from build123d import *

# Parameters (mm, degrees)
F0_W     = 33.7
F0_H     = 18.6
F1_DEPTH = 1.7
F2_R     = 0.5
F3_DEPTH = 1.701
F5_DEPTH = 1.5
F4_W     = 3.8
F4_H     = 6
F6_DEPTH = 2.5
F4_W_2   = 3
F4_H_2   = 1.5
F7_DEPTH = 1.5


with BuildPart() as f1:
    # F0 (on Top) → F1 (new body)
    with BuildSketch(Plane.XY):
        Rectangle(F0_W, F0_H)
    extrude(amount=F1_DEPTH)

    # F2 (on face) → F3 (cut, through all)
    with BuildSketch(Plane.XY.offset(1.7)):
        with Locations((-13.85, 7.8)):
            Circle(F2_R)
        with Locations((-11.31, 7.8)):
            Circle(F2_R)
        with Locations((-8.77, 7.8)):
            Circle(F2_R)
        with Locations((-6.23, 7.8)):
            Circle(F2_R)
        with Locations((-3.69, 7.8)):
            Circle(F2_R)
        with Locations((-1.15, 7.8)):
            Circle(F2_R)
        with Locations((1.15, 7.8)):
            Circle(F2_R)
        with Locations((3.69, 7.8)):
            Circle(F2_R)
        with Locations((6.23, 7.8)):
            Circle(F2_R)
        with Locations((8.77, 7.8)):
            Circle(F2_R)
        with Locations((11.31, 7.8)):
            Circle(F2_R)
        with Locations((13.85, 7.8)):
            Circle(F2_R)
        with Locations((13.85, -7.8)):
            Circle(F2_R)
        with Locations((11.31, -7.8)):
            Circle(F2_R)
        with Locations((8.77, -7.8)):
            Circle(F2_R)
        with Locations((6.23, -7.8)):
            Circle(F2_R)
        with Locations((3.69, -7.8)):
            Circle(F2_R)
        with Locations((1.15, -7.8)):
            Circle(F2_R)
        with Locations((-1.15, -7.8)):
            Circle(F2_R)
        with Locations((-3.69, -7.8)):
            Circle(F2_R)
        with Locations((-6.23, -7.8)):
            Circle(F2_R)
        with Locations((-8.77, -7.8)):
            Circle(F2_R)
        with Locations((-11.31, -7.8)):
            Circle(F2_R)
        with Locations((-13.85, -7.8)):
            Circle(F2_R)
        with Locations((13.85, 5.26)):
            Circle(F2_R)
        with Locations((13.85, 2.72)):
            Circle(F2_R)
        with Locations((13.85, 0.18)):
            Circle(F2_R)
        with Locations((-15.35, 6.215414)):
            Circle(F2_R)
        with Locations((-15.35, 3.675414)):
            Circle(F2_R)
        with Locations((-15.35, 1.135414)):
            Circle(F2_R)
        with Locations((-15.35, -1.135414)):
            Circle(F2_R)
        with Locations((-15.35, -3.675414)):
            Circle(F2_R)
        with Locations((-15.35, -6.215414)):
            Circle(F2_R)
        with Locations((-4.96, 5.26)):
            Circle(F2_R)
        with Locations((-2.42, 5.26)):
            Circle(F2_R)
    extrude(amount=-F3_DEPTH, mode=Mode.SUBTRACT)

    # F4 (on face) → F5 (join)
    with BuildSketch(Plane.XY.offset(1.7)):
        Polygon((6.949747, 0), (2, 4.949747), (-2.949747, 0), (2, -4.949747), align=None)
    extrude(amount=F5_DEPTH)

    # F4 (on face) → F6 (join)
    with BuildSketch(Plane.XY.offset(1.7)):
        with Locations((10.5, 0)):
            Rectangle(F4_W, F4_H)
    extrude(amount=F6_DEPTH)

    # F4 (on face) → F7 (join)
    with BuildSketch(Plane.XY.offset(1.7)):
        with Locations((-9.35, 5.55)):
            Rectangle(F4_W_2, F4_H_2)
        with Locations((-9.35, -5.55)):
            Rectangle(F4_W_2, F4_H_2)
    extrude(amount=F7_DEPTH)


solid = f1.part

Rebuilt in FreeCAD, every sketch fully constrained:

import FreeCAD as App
import Part
import Sketcher

doc = App.newDocument("Part")
body = doc.addObject("PartDesign::Body", "Body")

sketch1 = doc.addObject("Sketcher::SketchObject", "Sketch")
body.addObject(sketch1)
sketch1.AttachmentSupport = (doc.XY_Plane, [""])
sketch1.MapMode = "FlatFace"
sketch1.addGeometry([
    Part.LineSegment(App.Vector(-17, 9, 0), App.Vector(-17, -9, 0)),
    Part.LineSegment(App.Vector(-17, -9, 0), App.Vector(17, -9, 0)),
    Part.LineSegment(App.Vector(17, -9, 0), App.Vector(17, 9, 0)),
    Part.LineSegment(App.Vector(17, 9, 0), App.Vector(-17, 9, 0)),
], False)
sketch1.addConstraint([
    Sketcher.Constraint("Coincident", 0, 2, 1, 1),
    Sketcher.Constraint("Coincident", 1, 2, 2, 1),
    Sketcher.Constraint("Coincident", 2, 2, 3, 1),
    Sketcher.Constraint("Coincident", 3, 2, 0, 1),
    Sketcher.Constraint("Vertical", 0),
    Sketcher.Constraint("Horizontal", 1),
    Sketcher.Constraint("Vertical", 2),
    Sketcher.Constraint("Horizontal", 3),
    Sketcher.Constraint("Symmetric", 0, 2, 2, 2, -1, 1),
    Sketcher.Constraint("DistanceX", 1, 1, 1, 2, 33.7),
    Sketcher.Constraint("DistanceY", 0, 2, 0, 1, 18.6),
])
pad1 = doc.addObject("PartDesign::Pad", "Pad")
body.addObject(pad1)
pad1.Profile = sketch1
pad1.Length = 1.7

sketch2 = doc.addObject("Sketcher::SketchObject", "Sketch001")
body.addObject(sketch2)
sketch2.AttachmentSupport = (doc.XY_Plane, [""])
sketch2.MapMode = "FlatFace"
sketch2.AttachmentOffset = App.Placement(App.Vector(0, 0, 1.7), App.Rotation())
sketch2.addGeometry([
    Part.Circle(App.Vector(-13.8, 7.8, 0), App.Vector(0, 0, 1), 0.5),
    Part.Circle(App.Vector(-11.3, 7.8, 0), App.Vector(0, 0, 1), 0.5),
    Part.Circle(App.Vector(-8.8, 7.8, 0), App.Vector(0, 0, 1), 0.5),
    Part.Circle(App.Vector(-6.2, 7.8, 0), App.Vector(0, 0, 1), 0.5),
    Part.Circle(App.Vector(-3.7, 7.8, 0), App.Vector(0, 0, 1), 0.5),
    Part.Circle(App.Vector(-1.1, 7.8, 0), App.Vector(0, 0, 1), 0.5),
    Part.Circle(App.Vector(1.1, 7.8, 0), App.Vector(0, 0, 1), 0.5),
    Part.Circle(App.Vector(3.7, 7.8, 0), App.Vector(0, 0, 1), 0.5),
    Part.Circle(App.Vector(6.2, 7.8, 0), App.Vector(0, 0, 1), 0.5),
    Part.Circle(App.Vector(8.8, 7.8, 0), App.Vector(0, 0, 1), 0.5),
    Part.Circle(App.Vector(11.3, 7.8, 0), App.Vector(0, 0, 1), 0.5),
    Part.Circle(App.Vector(13.8, 7.8, 0), App.Vector(0, 0, 1), 0.5),
    Part.Circle(App.Vector(13.8, -7.8, 0), App.Vector(0, 0, 1), 0.5),
    Part.Circle(App.Vector(11.3, -7.8, 0), App.Vector(0, 0, 1), 0.5),
    Part.Circle(App.Vector(8.8, -7.8, 0), App.Vector(0, 0, 1), 0.5),
    Part.Circle(App.Vector(6.2, -7.8, 0), App.Vector(0, 0, 1), 0.5),
    Part.Circle(App.Vector(3.7, -7.8, 0), App.Vector(0, 0, 1), 0.5),
    Part.Circle(App.Vector(1.1, -7.8, 0), App.Vector(0, 0, 1), 0.5),
    Part.Circle(App.Vector(-1.1, -7.8, 0), App.Vector(0, 0, 1), 0.5),
    Part.Circle(App.Vector(-3.7, -7.8, 0), App.Vector(0, 0, 1), 0.5),
    Part.Circle(App.Vector(-6.2, -7.8, 0), App.Vector(0, 0, 1), 0.5),
    Part.Circle(App.Vector(-8.8, -7.8, 0), App.Vector(0, 0, 1), 0.5),
    Part.Circle(App.Vector(-11.3, -7.8, 0), App.Vector(0, 0, 1), 0.5),
    Part.Circle(App.Vector(-13.8, -7.8, 0), App.Vector(0, 0, 1), 0.5),
    Part.Circle(App.Vector(13.8, 5.3, 0), App.Vector(0, 0, 1), 0.5),
    Part.Circle(App.Vector(13.8, 2.7, 0), App.Vector(0, 0, 1), 0.5),
    Part.Circle(App.Vector(13.8, 0.2, 0), App.Vector(0, 0, 1), 0.5),
    Part.Circle(App.Vector(-15.3, 6.2, 0), App.Vector(0, 0, 1), 0.5),
    Part.Circle(App.Vector(-15.3, 3.7, 0), App.Vector(0, 0, 1), 0.5),
    Part.Circle(App.Vector(-15.3, 1.1, 0), App.Vector(0, 0, 1), 0.5),
    Part.Circle(App.Vector(-15.3, -1.1, 0), App.Vector(0, 0, 1), 0.5),
    Part.Circle(App.Vector(-15.3, -3.7, 0), App.Vector(0, 0, 1), 0.5),
    Part.Circle(App.Vector(-15.3, -6.2, 0), App.Vector(0, 0, 1), 0.5),
    Part.Circle(App.Vector(-5, 5.3, 0), App.Vector(0, 0, 1), 0.5),
    Part.Circle(App.Vector(-2.4, 5.3, 0), App.Vector(0, 0, 1), 0.5),
], False)
sketch2.addConstraint([
    Sketcher.Constraint("Equal", 0, 1),
    Sketcher.Constraint("Equal", 1, 2),
    Sketcher.Constraint("Equal", 2, 3),
    Sketcher.Constraint("Equal", 3, 4),
    Sketcher.Constraint("Equal", 4, 5),
    Sketcher.Constraint("Equal", 5, 6),
    Sketcher.Constraint("Equal", 6, 7),
    Sketcher.Constraint("Equal", 7, 8),
    Sketcher.Constraint("Equal", 8, 9),
    Sketcher.Constraint("Equal", 9, 10),
    Sketcher.Constraint("Equal", 10, 11),
    Sketcher.Constraint("Equal", 11, 12),
    Sketcher.Constraint("Equal", 12, 13),
    Sketcher.Constraint("Equal", 13, 14),
    Sketcher.Constraint("Equal", 14, 15),
    Sketcher.Constraint("Equal", 15, 16),
    Sketcher.Constraint("Equal", 16, 17),
    Sketcher.Constraint("Equal", 17, 18),
    Sketcher.Constraint("Equal", 18, 19),
    Sketcher.Constraint("Equal", 19, 20),
    Sketcher.Constraint("Equal", 20, 21),
    Sketcher.Constraint("Equal", 21, 22),
    Sketcher.Constraint("Equal", 22, 23),
    Sketcher.Constraint("Equal", 23, 24),
    Sketcher.Constraint("Equal", 24, 25),
    Sketcher.Constraint("Equal", 25, 26),
    Sketcher.Constraint("Equal", 26, 27),
    Sketcher.Constraint("Equal", 27, 28),
    Sketcher.Constraint("Equal", 28, 29),
    Sketcher.Constraint("Equal", 29, 30),
    Sketcher.Constraint("Equal", 30, 31),
    Sketcher.Constraint("Equal", 31, 32),
    Sketcher.Constraint("Equal", 32, 33),
    Sketcher.Constraint("Equal", 33, 34),
    Sketcher.Constraint("Symmetric", 0, 3, 12, 3, -1, 1),
    Sketcher.Constraint("Symmetric", 1, 3, 13, 3, -1, 1),
    Sketcher.Constraint("Symmetric", 2, 3, 14, 3, -1, 1),
    Sketcher.Constraint("Symmetric", 3, 3, 15, 3, -1, 1),
    Sketcher.Constraint("Symmetric", 4, 3, 16, 3, -1, 1),
    Sketcher.Constraint("Symmetric", 5, 3, 17, 3, -1, 1),
    Sketcher.Constraint("Symmetric", 6, 3, 18, 3, -1, 1),
    Sketcher.Constraint("Symmetric", 7, 3, 19, 3, -1, 1),
    Sketcher.Constraint("Symmetric", 8, 3, 20, 3, -1, 1),
    Sketcher.Constraint("Symmetric", 9, 3, 21, 3, -1, 1),
    Sketcher.Constraint("Symmetric", 10, 3, 22, 3, -1, 1),
    Sketcher.Constraint("Symmetric", 11, 3, 23, 3, -1, 1),
    Sketcher.Constraint("Symmetric", 5, 3, 6, 3, -2),
    Sketcher.Constraint("Symmetric", 4, 3, 7, 3, -2),
    Sketcher.Constraint("Symmetric", 3, 3, 8, 3, -2),
    Sketcher.Constraint("Symmetric", 2, 3, 9, 3, -2),
    Sketcher.Constraint("Symmetric", 1, 3, 10, 3, -2),
    Sketcher.Constraint("Symmetric", 0, 3, 11, 3, -2),
    Sketcher.Constraint("Symmetric", 29, 3, 30, 3, -1),
    Sketcher.Constraint("Symmetric", 28, 3, 31, 3, -1),
    Sketcher.Constraint("Symmetric", 27, 3, 32, 3, -1),
    Sketcher.Constraint("Horizontal", 0, 3, 1, 3),
    Sketcher.Constraint("Horizontal", 1, 3, 2, 3),
    Sketcher.Constraint("Horizontal", 2, 3, 3, 3),
    Sketcher.Constraint("Horizontal", 3, 3, 4, 3),
    Sketcher.Constraint("Horizontal", 4, 3, 5, 3),
    Sketcher.Constraint("Horizontal", 24, 3, 33, 3),
    Sketcher.Constraint("Horizontal", 33, 3, 34, 3),
    Sketcher.Constraint("Vertical", 12, 3, 24, 3),
    Sketcher.Constraint("Vertical", 24, 3, 25, 3),
    Sketcher.Constraint("Vertical", 25, 3, 26, 3),
    Sketcher.Constraint("Vertical", 27, 3, 28, 3),
    Sketcher.Constraint("Vertical", 28, 3, 29, 3),
    Sketcher.Constraint("Diameter", 0, 1.0),
    Sketcher.Constraint("DistanceY", -1, 1, 0, 3, 7.8),
    Sketcher.Constraint("DistanceX", 0, 3, 5, 3, 12.7),
    Sketcher.Constraint("DistanceX", 5, 3, 6, 3, 2.3),
    Sketcher.Constraint("DistanceX", 27, 3, 0, 3, 1.5),
    Sketcher.Constraint("DistanceX", 1, 3, -1, 1, 11.31),
    Sketcher.Constraint("DistanceX", 2, 3, -1, 1, 8.77),
    Sketcher.Constraint("DistanceX", 3, 3, -1, 1, 6.23),
    Sketcher.Constraint("DistanceX", 4, 3, -1, 1, 3.69),
    Sketcher.Constraint("DistanceY", -1, 1, 24, 3, 5.26),
    Sketcher.Constraint("DistanceY", -1, 1, 25, 3, 2.72),
    Sketcher.Constraint("DistanceY", -1, 1, 26, 3, 0.18),
    Sketcher.Constraint("DistanceX", 33, 3, -1, 1, 4.96),
    Sketcher.Constraint("DistanceX", 34, 3, -1, 1, 2.42),
    Sketcher.Constraint("DistanceY", 28, 3, 27, 3, 2.54),
    Sketcher.Constraint("DistanceY", 29, 3, 28, 3, 2.54),
    Sketcher.Constraint("DistanceY", -1, 1, 27, 3, 6.215414),
])
pocket1 = doc.addObject("PartDesign::Pocket", "Pocket")
body.addObject(pocket1)
pocket1.Profile = sketch2
pocket1.Type = "ThroughAll"

sketch3 = doc.addObject("Sketcher::SketchObject", "Sketch002")
body.addObject(sketch3)
sketch3.AttachmentSupport = (doc.XY_Plane, [""])
sketch3.MapMode = "FlatFace"
sketch3.AttachmentOffset = App.Placement(App.Vector(0, 0, 1.7), App.Rotation())
sketch3.addGeometry([
    Part.LineSegment(App.Vector(7, 0, 0), App.Vector(2, 5, 0)),
    Part.LineSegment(App.Vector(2, 5, 0), App.Vector(-3, 0, 0)),
    Part.LineSegment(App.Vector(-3, 0, 0), App.Vector(2, -5, 0)),
    Part.LineSegment(App.Vector(2, -5, 0), App.Vector(7, 0, 0)),
], False)
sketch3.addConstraint([
    Sketcher.Constraint("Coincident", 0, 2, 1, 1),
    Sketcher.Constraint("Coincident", 1, 2, 2, 1),
    Sketcher.Constraint("Coincident", 2, 2, 3, 1),
    Sketcher.Constraint("Coincident", 3, 2, 0, 1),
    Sketcher.Constraint("Symmetric", 0, 2, 2, 2, -1),
    Sketcher.Constraint("PointOnObject", 1, 2, -1),
    Sketcher.Constraint("PointOnObject", 3, 2, -1),
    Sketcher.Constraint("Perpendicular", 0, 1),
    Sketcher.Constraint("Perpendicular", 1, 2),
    Sketcher.Constraint("Distance", 0, 6.999999),
    Sketcher.Constraint("DistanceX", -1, 1, 0, 2, 2.0),
])
pad2 = doc.addObject("PartDesign::Pad", "Pad001")
body.addObject(pad2)
pad2.Profile = sketch3
pad2.Length = 1.5

sketch4 = doc.addObject("Sketcher::SketchObject", "Sketch003")
body.addObject(sketch4)
sketch4.AttachmentSupport = (doc.XY_Plane, [""])
sketch4.MapMode = "FlatFace"
sketch4.AttachmentOffset = App.Placement(App.Vector(0, 0, 1.7), App.Rotation())
sketch4.addGeometry([
    Part.LineSegment(App.Vector(8.6, 3, 0), App.Vector(8.6, -3, 0)),
    Part.LineSegment(App.Vector(8.6, -3, 0), App.Vector(12.4, -3, 0)),
    Part.LineSegment(App.Vector(12.4, -3, 0), App.Vector(12.4, 3, 0)),
    Part.LineSegment(App.Vector(12.4, 3, 0), App.Vector(8.6, 3, 0)),
], False)
sketch4.addConstraint([
    Sketcher.Constraint("Coincident", 0, 2, 1, 1),
    Sketcher.Constraint("Coincident", 1, 2, 2, 1),
    Sketcher.Constraint("Coincident", 2, 2, 3, 1),
    Sketcher.Constraint("Coincident", 3, 2, 0, 1),
    Sketcher.Constraint("Vertical", 0),
    Sketcher.Constraint("Horizontal", 1),
    Sketcher.Constraint("Vertical", 2),
    Sketcher.Constraint("Horizontal", 3),
    Sketcher.Constraint("DistanceY", 0, 2, 0, 1, 6.0),
    Sketcher.Constraint("DistanceX", 1, 1, 1, 2, 3.8),
    Sketcher.Constraint("DistanceY", 0, 2, -1, 1, 3.0),
    Sketcher.Constraint("DistanceX", -1, 1, 0, 2, 8.6),
])
pad3 = doc.addObject("PartDesign::Pad", "Pad002")
body.addObject(pad3)
pad3.Profile = sketch4
pad3.Length = 2.5

sketch5 = doc.addObject("Sketcher::SketchObject", "Sketch004")
body.addObject(sketch5)
sketch5.AttachmentSupport = (doc.XY_Plane, [""])
sketch5.MapMode = "FlatFace"
sketch5.AttachmentOffset = App.Placement(App.Vector(0, 0, 1.7), App.Rotation())
sketch5.addGeometry([
    Part.LineSegment(App.Vector(-10.8, 6.3, 0), App.Vector(-10.8, 4.8, 0)),
    Part.LineSegment(App.Vector(-10.8, 4.8, 0), App.Vector(-7.8, 4.8, 0)),
    Part.LineSegment(App.Vector(-7.8, 4.8, 0), App.Vector(-7.8, 6.3, 0)),
    Part.LineSegment(App.Vector(-7.8, 6.3, 0), App.Vector(-10.8, 6.3, 0)),
    Part.LineSegment(App.Vector(-10.8, -4.8, 0), App.Vector(-10.8, -6.3, 0)),
    Part.LineSegment(App.Vector(-10.8, -6.3, 0), App.Vector(-7.8, -6.3, 0)),
    Part.LineSegment(App.Vector(-7.8, -6.3, 0), App.Vector(-7.8, -4.8, 0)),
    Part.LineSegment(App.Vector(-7.8, -4.8, 0), App.Vector(-10.8, -4.8, 0)),
], False)
sketch5.addConstraint([
    Sketcher.Constraint("Coincident", 0, 2, 1, 1),
    Sketcher.Constraint("Coincident", 1, 2, 2, 1),
    Sketcher.Constraint("Coincident", 2, 2, 3, 1),
    Sketcher.Constraint("Coincident", 3, 2, 0, 1),
    Sketcher.Constraint("Coincident", 4, 2, 5, 1),
    Sketcher.Constraint("Coincident", 5, 2, 6, 1),
    Sketcher.Constraint("Coincident", 6, 2, 7, 1),
    Sketcher.Constraint("Coincident", 7, 2, 4, 1),
    Sketcher.Constraint("Vertical", 0),
    Sketcher.Constraint("Horizontal", 1),
    Sketcher.Constraint("Vertical", 2),
    Sketcher.Constraint("Horizontal", 3),
    Sketcher.Constraint("Vertical", 4),
    Sketcher.Constraint("Horizontal", 5),
    Sketcher.Constraint("Vertical", 6),
    Sketcher.Constraint("Horizontal", 7),
    Sketcher.Constraint("Symmetric", 3, 2, 4, 2, -1),
    Sketcher.Constraint("Symmetric", 1, 2, 6, 2, -1),
    Sketcher.Constraint("DistanceX", 1, 1, 1, 2, 3.0),
    Sketcher.Constraint("DistanceY", 0, 2, 0, 1, 1.5),
    Sketcher.Constraint("DistanceY", -1, 1, 0, 2, 4.8),
    Sketcher.Constraint("DistanceX", 0, 2, -1, 1, 10.85),
])
pad4 = doc.addObject("PartDesign::Pad", "Pad003")
body.addObject(pad4)
pad4.Profile = sketch5
pad4.Length = 1.5

doc.recompute()
